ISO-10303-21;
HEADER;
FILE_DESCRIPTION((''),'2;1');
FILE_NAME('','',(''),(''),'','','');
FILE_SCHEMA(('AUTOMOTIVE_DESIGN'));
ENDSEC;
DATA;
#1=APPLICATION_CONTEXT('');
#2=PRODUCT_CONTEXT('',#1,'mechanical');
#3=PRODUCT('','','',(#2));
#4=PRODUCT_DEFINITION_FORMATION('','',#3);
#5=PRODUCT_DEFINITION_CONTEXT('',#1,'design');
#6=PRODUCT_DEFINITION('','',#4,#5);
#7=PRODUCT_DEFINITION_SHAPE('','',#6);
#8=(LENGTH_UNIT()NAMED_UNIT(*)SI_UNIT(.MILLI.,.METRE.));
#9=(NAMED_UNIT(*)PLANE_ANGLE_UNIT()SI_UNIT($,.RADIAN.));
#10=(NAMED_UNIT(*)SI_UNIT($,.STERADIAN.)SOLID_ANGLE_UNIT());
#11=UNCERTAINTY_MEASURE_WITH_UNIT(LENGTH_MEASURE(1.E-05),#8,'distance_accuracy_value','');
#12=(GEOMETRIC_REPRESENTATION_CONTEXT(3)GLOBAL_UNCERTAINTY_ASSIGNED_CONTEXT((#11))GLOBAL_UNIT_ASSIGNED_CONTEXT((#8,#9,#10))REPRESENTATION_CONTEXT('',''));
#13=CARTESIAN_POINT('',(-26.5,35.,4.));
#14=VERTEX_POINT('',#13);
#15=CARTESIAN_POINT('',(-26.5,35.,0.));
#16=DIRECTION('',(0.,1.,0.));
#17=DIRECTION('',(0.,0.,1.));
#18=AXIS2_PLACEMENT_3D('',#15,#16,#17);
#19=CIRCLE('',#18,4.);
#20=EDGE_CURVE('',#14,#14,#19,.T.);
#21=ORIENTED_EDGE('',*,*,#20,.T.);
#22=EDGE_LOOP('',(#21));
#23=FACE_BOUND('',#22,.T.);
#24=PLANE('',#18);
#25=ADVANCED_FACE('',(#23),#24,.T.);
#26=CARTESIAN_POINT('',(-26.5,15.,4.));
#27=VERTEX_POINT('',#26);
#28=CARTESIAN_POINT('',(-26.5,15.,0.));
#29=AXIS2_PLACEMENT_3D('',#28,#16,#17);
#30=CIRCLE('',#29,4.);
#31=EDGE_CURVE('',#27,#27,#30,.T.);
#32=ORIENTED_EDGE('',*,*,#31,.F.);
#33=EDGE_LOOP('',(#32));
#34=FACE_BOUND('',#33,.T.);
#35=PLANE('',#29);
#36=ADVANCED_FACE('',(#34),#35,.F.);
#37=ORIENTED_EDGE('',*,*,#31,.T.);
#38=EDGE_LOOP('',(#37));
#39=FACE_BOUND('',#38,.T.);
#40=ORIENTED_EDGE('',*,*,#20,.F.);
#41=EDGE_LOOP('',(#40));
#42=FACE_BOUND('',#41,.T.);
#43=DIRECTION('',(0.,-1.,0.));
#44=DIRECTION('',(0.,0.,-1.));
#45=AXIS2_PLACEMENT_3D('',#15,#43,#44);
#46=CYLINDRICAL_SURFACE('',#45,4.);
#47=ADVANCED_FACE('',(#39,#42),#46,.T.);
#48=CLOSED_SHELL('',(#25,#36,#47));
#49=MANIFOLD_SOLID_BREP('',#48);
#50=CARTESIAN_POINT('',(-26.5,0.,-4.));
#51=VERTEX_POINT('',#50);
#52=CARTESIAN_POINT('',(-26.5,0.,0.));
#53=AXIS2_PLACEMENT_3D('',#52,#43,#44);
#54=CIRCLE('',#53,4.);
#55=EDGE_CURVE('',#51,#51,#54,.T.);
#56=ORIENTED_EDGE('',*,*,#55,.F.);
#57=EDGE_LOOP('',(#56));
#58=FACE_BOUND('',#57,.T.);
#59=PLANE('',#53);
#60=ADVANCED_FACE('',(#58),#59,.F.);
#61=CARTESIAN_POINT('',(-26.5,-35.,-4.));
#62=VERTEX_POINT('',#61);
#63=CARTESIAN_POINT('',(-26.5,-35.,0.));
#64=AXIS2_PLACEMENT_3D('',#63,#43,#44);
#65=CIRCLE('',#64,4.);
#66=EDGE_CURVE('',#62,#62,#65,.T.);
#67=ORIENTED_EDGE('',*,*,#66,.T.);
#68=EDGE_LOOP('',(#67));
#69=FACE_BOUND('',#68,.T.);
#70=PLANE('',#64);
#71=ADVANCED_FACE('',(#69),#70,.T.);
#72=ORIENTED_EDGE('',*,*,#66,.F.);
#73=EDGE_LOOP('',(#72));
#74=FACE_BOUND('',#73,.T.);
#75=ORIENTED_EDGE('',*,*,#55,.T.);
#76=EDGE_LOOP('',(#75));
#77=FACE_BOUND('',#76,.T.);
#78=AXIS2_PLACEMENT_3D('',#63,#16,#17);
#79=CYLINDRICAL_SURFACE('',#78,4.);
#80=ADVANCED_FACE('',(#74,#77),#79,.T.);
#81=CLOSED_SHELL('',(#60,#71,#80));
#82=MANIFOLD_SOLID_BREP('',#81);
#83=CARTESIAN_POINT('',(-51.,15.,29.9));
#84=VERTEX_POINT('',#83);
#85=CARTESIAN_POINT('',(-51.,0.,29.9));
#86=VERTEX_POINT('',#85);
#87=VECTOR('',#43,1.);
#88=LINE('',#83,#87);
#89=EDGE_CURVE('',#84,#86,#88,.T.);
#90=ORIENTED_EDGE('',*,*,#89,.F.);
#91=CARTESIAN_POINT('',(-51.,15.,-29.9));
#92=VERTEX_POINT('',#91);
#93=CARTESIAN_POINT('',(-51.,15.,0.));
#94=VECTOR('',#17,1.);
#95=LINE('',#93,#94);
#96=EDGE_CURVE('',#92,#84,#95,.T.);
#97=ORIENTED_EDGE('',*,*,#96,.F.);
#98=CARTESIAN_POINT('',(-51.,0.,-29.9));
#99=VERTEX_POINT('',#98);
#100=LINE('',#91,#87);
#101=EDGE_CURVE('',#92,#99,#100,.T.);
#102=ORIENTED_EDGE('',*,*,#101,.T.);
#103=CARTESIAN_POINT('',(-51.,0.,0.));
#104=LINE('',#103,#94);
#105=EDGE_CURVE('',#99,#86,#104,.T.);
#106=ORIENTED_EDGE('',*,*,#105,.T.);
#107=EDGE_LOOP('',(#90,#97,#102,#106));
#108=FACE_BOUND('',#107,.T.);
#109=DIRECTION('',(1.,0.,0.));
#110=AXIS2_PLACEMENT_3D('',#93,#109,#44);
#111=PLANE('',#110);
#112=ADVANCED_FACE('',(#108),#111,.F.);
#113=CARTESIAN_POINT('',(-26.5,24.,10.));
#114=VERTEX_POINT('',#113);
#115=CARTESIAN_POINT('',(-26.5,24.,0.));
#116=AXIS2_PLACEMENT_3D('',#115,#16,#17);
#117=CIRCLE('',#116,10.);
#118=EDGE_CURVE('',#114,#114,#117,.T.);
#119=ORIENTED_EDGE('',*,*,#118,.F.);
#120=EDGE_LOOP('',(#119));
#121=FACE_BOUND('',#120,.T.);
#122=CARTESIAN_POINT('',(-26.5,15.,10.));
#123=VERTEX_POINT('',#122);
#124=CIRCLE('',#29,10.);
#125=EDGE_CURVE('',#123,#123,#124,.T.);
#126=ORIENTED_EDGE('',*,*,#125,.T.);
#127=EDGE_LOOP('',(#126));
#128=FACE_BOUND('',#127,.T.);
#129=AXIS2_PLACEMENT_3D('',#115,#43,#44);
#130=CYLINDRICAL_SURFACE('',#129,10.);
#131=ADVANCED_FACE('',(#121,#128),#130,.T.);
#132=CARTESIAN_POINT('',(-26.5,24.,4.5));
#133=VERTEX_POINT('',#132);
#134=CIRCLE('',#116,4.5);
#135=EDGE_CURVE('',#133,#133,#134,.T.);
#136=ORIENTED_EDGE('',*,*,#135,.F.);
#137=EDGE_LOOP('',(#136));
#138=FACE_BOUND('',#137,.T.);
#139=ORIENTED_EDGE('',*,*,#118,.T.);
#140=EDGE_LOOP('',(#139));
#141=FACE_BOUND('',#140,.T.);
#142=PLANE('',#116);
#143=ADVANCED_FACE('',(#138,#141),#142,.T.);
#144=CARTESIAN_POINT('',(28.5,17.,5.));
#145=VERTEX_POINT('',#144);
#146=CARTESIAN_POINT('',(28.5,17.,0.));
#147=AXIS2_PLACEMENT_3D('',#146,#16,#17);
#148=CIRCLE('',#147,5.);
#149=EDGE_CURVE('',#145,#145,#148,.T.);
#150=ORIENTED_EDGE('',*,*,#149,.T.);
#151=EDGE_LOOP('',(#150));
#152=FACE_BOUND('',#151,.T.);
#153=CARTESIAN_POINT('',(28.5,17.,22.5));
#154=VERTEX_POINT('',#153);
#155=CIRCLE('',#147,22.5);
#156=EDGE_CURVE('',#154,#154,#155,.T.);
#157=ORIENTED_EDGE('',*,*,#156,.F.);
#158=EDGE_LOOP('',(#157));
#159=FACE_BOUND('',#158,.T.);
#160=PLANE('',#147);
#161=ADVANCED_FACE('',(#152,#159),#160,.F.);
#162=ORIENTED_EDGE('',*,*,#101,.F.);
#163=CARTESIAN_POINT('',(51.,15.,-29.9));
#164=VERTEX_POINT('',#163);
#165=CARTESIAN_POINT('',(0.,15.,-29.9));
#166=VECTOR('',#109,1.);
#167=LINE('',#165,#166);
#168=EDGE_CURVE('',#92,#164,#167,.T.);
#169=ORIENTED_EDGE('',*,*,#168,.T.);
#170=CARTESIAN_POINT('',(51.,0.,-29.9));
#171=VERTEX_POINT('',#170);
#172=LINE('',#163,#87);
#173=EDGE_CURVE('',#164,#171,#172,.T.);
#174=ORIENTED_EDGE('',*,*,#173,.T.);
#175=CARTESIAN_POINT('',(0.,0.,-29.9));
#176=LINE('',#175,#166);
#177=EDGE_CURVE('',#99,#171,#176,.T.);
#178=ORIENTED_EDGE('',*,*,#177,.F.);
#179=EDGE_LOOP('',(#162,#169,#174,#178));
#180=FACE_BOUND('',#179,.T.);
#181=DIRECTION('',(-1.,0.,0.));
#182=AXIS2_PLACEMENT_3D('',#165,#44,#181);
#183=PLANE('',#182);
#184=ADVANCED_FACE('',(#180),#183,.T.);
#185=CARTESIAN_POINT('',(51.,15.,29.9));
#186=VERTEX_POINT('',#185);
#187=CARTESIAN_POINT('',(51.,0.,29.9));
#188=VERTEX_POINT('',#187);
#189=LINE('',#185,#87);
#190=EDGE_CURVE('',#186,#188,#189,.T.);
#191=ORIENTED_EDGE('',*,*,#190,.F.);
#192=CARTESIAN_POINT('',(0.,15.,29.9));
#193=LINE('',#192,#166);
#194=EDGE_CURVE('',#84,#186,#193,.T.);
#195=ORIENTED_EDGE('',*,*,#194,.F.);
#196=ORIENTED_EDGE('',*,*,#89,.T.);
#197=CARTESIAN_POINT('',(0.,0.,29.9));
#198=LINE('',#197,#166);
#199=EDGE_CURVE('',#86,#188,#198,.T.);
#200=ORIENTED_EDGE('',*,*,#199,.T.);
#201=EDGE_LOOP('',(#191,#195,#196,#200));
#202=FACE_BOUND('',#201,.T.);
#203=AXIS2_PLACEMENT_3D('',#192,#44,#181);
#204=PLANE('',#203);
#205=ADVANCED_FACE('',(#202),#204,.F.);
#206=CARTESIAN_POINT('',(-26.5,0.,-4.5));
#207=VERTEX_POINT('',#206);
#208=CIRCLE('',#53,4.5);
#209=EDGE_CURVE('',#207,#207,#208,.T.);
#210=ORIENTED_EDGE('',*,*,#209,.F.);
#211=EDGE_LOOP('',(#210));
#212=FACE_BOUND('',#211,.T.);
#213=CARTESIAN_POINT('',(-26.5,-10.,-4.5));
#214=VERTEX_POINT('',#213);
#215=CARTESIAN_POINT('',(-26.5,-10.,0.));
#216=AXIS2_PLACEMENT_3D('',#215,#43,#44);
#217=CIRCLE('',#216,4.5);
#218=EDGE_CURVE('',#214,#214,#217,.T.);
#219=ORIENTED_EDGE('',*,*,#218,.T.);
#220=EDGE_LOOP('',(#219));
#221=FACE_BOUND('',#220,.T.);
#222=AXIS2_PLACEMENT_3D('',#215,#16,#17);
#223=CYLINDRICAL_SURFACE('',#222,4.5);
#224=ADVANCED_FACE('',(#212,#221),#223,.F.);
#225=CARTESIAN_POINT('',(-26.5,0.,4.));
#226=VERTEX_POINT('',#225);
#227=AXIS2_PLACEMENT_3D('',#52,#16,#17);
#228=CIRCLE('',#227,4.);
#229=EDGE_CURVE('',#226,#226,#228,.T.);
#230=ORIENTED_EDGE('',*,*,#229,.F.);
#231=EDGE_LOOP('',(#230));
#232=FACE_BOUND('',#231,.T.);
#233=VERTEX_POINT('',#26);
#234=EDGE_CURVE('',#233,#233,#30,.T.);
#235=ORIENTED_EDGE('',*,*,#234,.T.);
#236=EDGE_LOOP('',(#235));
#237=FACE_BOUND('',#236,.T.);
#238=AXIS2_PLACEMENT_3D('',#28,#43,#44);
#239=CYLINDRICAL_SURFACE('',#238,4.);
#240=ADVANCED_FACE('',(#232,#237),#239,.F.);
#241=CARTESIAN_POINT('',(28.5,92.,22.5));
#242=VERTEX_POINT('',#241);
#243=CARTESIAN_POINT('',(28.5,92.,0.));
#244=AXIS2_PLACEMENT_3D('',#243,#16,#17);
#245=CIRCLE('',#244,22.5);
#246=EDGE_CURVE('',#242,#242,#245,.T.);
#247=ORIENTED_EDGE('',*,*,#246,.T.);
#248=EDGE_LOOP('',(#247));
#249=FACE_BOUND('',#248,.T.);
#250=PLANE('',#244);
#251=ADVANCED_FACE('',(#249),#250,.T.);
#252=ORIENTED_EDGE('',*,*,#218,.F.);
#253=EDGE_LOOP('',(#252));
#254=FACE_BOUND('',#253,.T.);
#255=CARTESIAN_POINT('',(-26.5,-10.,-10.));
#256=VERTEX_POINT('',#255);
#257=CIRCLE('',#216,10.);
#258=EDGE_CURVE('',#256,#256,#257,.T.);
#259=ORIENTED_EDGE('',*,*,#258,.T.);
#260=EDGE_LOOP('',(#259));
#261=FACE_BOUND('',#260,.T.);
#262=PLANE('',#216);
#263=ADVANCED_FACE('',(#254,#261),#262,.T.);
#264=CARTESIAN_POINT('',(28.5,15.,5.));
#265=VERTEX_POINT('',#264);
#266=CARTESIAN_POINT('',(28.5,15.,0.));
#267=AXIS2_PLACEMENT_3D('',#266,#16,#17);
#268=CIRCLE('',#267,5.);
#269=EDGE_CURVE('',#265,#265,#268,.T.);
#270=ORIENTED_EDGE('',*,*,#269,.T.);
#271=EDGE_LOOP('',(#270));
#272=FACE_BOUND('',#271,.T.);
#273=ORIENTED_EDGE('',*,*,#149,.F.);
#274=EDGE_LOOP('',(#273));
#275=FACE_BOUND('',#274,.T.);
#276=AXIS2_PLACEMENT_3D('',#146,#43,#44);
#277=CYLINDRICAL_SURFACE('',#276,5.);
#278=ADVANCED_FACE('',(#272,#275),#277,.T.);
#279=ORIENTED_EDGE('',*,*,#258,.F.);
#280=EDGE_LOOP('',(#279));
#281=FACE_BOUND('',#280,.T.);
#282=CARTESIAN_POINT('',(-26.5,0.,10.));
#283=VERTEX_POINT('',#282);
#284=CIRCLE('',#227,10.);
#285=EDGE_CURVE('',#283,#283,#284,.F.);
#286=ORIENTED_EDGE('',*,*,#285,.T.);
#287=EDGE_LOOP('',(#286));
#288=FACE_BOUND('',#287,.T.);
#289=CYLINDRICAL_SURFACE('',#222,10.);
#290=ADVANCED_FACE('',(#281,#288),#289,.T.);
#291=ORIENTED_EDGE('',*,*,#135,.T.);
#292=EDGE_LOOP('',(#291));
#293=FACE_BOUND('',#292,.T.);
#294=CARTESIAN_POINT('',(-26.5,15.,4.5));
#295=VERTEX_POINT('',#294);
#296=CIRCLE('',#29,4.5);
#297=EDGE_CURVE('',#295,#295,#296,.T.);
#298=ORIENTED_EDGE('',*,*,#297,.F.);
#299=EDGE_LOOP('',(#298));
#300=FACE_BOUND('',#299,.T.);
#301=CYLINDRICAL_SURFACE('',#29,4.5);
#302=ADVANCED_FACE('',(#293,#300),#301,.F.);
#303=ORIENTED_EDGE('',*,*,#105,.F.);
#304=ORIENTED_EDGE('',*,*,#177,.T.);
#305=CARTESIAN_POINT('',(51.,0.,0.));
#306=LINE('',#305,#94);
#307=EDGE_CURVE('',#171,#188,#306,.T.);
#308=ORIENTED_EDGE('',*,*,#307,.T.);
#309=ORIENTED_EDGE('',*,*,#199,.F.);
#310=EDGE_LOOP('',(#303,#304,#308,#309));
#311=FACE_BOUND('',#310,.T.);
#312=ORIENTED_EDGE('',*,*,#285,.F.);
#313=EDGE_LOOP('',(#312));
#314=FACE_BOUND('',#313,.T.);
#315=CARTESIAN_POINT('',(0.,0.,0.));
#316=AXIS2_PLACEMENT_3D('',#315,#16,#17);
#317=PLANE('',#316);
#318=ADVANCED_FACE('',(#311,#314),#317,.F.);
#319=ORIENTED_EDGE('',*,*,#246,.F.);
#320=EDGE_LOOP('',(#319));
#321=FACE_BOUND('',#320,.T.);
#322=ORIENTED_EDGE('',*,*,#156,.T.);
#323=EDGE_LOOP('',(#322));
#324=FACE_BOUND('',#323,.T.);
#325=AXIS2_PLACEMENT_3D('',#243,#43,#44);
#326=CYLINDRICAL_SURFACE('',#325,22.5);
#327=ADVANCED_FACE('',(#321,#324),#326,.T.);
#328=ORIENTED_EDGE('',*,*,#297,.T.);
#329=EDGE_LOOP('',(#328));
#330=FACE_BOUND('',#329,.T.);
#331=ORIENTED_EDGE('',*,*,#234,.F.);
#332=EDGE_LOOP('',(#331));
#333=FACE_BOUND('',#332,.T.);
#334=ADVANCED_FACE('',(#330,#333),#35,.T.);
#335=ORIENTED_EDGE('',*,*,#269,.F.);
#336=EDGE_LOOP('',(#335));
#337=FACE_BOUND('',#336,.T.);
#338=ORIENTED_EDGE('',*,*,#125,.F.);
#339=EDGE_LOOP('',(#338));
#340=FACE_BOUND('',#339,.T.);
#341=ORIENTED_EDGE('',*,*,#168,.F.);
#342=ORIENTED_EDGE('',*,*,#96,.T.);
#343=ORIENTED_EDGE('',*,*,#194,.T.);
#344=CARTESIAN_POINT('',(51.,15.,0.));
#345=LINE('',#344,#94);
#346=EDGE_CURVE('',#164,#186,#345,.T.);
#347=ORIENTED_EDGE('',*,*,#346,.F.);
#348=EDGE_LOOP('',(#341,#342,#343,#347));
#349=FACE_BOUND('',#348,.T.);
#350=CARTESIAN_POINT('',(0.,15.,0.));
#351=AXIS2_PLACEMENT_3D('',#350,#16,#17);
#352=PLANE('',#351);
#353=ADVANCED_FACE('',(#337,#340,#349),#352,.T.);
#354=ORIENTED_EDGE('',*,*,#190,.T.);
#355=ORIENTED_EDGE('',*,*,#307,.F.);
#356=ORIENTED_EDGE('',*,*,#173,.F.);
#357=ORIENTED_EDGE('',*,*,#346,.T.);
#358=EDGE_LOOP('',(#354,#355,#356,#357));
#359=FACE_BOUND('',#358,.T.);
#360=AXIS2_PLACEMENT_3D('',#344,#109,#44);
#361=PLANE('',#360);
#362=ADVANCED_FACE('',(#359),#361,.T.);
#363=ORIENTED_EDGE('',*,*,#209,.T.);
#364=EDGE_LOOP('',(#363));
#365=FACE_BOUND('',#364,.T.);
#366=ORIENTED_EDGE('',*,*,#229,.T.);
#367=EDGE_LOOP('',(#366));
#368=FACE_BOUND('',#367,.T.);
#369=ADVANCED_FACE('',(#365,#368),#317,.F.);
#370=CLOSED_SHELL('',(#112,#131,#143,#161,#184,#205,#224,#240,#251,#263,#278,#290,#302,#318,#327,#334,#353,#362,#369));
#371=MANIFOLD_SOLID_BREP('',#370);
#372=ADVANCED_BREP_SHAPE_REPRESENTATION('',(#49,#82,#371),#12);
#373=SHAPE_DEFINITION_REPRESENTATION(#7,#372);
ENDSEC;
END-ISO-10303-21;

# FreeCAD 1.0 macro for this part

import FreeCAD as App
import Part
import Sketcher
from FreeCAD import Vector


def add_polygon(sketch, points):
    """Adds a closed chain of lines whose ends are joined by coincident constraints."""
    first, n = sketch.GeometryCount, len(points)
    for a, b in zip(points, points[1:] + points[:1]):
        sketch.addGeometry(Part.LineSegment(App.Vector(*a, 0), App.Vector(*b, 0)), False)
    for i in range(n):
        sketch.addConstraint(Sketcher.Constraint("Coincident", first + i, 2, first + (i + 1) % n, 1))

doc = App.newDocument("Part")
params = doc.addObject("Spreadsheet::Sheet", "Params")
for row, (alias, value) in enumerate([
    ("sketch1_diameter", "8 mm"),
    ("sketch1_width", "102 mm"),
    ("sketch1_height", "59.8 mm"),
    ("pad1_length", "15 mm"),
    ("sketch2_diameter", "10 mm"),
    ("pad2_length", "2 mm"),
    ("sketch3_diameter", "45 mm"),
    ("pad3_length", "75 mm"),
    ("sketch4_diameter", "20 mm"),
    ("pad4_length", "9 mm"),
    ("sketch5_diameter", "9 mm"),
    ("pocket1_length", "9 mm"),
    ("sketch6_diameter", "20 mm"),
    ("sketch6_diameter2", "9 mm"),
    ("pad5_length", "10 mm"),
    ("sketch7_diameter", "8 mm"),
    ("pad6_length", "20 mm"),
    ("sketch8_diameter", "8 mm"),
    ("pad7_length", "35 mm"),
], start=1):
    params.set(f"A{row}", alias)
    params.set(f"B{row}", "=" + value)
    params.setAlias(f"B{row}", alias)

body = doc.addObject("PartDesign::Body", "Body")

# Sketch on XZ plane
sketch1 = doc.addObject("Sketcher::SketchObject", "Sketch")
body.addObject(sketch1)
sketch1.AttachmentSupport = (doc.XZ_Plane, [""])
sketch1.MapMode = "FlatFace"
add_polygon(sketch1, [(-51, -29.9), (-51, 29.9), (51, 29.9), (51, -29.9)])  # lines 0-3
sketch1.addGeometry(Part.Circle(Vector(-26.5, 0, 0), Vector(0, 0, 1), 4), False)  # 4
sketch1.addConstraint(Sketcher.Constraint("Vertical", 0))
sketch1.addConstraint(Sketcher.Constraint("Horizontal", 1))
sketch1.addConstraint(Sketcher.Constraint("Vertical", 2))
sketch1.addConstraint(Sketcher.Constraint("Horizontal", 3))
sketch1.addConstraint(Sketcher.Constraint("Symmetric", 0, 2, 2, 2, -1, 1))
sketch1.addConstraint(Sketcher.Constraint("PointOnObject", 4, 3, -1))
sketch1.addConstraint(Sketcher.Constraint("Diameter", 4, 8.0))
sketch1.addConstraint(Sketcher.Constraint("DistanceX", 1, 1, 1, 2, 102.0))
sketch1.addConstraint(Sketcher.Constraint("DistanceY", 0, 1, 0, 2, 59.8))
sketch1.addConstraint(Sketcher.Constraint("DistanceX", 4, 3, -1, 1, 26.5))
sketch1.setExpression("Constraints[10]", "Params.sketch1_diameter")
sketch1.setExpression("Constraints[11]", "Params.sketch1_width")
sketch1.setExpression("Constraints[12]", "Params.sketch1_height")
pad1 = doc.addObject("PartDesign::Pad", "Pad")
body.addObject(pad1)
pad1.Profile = sketch1
pad1.setExpression("Length", "Params.pad1_length")
pad1.Reversed = True

# Sketch on XZ plane
sketch2 = doc.addObject("Sketcher::SketchObject", "Sketch001")
body.addObject(sketch2)
sketch2.AttachmentSupport = (doc.XZ_Plane, [""])
sketch2.MapMode = "FlatFace"
sketch2.AttachmentOffset = App.Placement(Vector(0, 0, -15), App.Rotation())
sketch2.addGeometry(Part.Circle(Vector(28.5, 0, 0), Vector(0, 0, 1), 5), False)
sketch2.addConstraint(Sketcher.Constraint("PointOnObject", 0, 3, -1))
sketch2.addConstraint(Sketcher.Constraint("Diameter", 0, 10.0))
sketch2.addConstraint(Sketcher.Constraint("DistanceX", -1, 1, 0, 3, 28.5))
sketch2.setExpression("Constraints[1]", "Params.sketch2_diameter")
pad2 = doc.addObject("PartDesign::Pad", "Pad001")
body.addObject(pad2)
pad2.Profile = sketch2
pad2.setExpression("Length", "Params.pad2_length")
pad2.Reversed = True

# Sketch on XZ plane
sketch3 = doc.addObject("Sketcher::SketchObject", "Sketch002")
body.addObject(sketch3)
sketch3.AttachmentSupport = (doc.XZ_Plane, [""])
sketch3.MapMode = "FlatFace"
sketch3.AttachmentOffset = App.Placement(Vector(0, 0, -17), App.Rotation())
sketch3.addGeometry(Part.Circle(Vector(28.5, 0, 0), Vector(0, 0, 1), 22.5), False)
sketch3.addConstraint(Sketcher.Constraint("PointOnObject", 0, 3, -1))
sketch3.addConstraint(Sketcher.Constraint("Diameter", 0, 45.0))
sketch3.addConstraint(Sketcher.Constraint("DistanceX", -1, 1, 0, 3, 28.5))
sketch3.setExpression("Constraints[1]", "Params.sketch3_diameter")
pad3 = doc.addObject("PartDesign::Pad", "Pad002")
body.addObject(pad3)
pad3.Profile = sketch3
pad3.setExpression("Length", "Params.pad3_length")
pad3.Reversed = True

# Sketch on XZ plane
sketch4 = doc.addObject("Sketcher::SketchObject", "Sketch003")
body.addObject(sketch4)
sketch4.AttachmentSupport = (doc.XZ_Plane, [""])
sketch4.MapMode = "FlatFace"
sketch4.AttachmentOffset = App.Placement(Vector(0, 0, -15), App.Rotation())
sketch4.addGeometry(Part.Circle(Vector(-26.5, 0, 0), Vector(0, 0, 1), 10), False)
sketch4.addConstraint(Sketcher.Constraint("PointOnObject", 0, 3, -1))
sketch4.addConstraint(Sketcher.Constraint("Diameter", 0, 20.0))
sketch4.addConstraint(Sketcher.Constraint("DistanceX", 0, 3, -1, 1, 26.5))
sketch4.setExpression("Constraints[1]", "Params.sketch4_diameter")
pad4 = doc.addObject("PartDesign::Pad", "Pad003")
body.addObject(pad4)
pad4.Profile = sketch4
pad4.setExpression("Length", "Params.pad4_length")
pad4.Reversed = True

# Sketch on XZ plane
sketch5 = doc.addObject("Sketcher::SketchObject", "Sketch004")
body.addObject(sketch5)
sketch5.AttachmentSupport = (doc.XZ_Plane, [""])
sketch5.MapMode = "FlatFace"
sketch5.AttachmentOffset = App.Placement(Vector(0, 0, -24), App.Rotation())
sketch5.addGeometry(Part.Circle(Vector(-26.5, 0, 0), Vector(0, 0, 1), 4.5), False)
sketch5.addConstraint(Sketcher.Constraint("PointOnObject", 0, 3, -1))
sketch5.addConstraint(Sketcher.Constraint("Diameter", 0, 9.0))
sketch5.addConstraint(Sketcher.Constraint("DistanceX", 0, 3, -1, 1, 26.5))
sketch5.setExpression("Constraints[1]", "Params.sketch5_diameter")
pocket1 = doc.addObject("PartDesign::Pocket", "Pocket")
body.addObject(pocket1)
pocket1.Profile = sketch5
pocket1.setExpression("Length", "Params.pocket1_length")
pocket1.Reversed = True

# Sketch on XZ plane
sketch6 = doc.addObject("Sketcher::SketchObject", "Sketch005")
body.addObject(sketch6)
sketch6.AttachmentSupport = (doc.XZ_Plane, [""])
sketch6.MapMode = "FlatFace"
sketch6.addGeometry(Part.Circle(Vector(-26.5, 0, 0), Vector(0, 0, 1), 10), False)
sketch6.addGeometry(Part.Circle(Vector(-26.5, 0, 0), Vector(0, 0, 1), 4.5), False)
sketch6.addConstraint(Sketcher.Constraint("Coincident", 1, 3, 0, 3))
sketch6.addConstraint(Sketcher.Constraint("PointOnObject", 0, 3, -1))
sketch6.addConstraint(Sketcher.Constraint("Diameter", 0, 20.0))
sketch6.addConstraint(Sketcher.Constraint("Diameter", 1, 9.0))
sketch6.addConstraint(Sketcher.Constraint("DistanceX", 0, 3, -1, 1, 26.5))
sketch6.setExpression("Constraints[2]", "Params.sketch6_diameter")
sketch6.setExpression("Constraints[3]", "Params.sketch6_diameter2")
pad5 = doc.addObject("PartDesign::Pad", "Pad004")
body.addObject(pad5)
pad5.Profile = sketch6
pad5.setExpression("Length", "Params.pad5_length")
body2 = doc.addObject("PartDesign::Body", "Body001")

# Sketch on XZ plane
sketch7 = doc.addObject("Sketcher::SketchObject", "Sketch006")
body2.addObject(sketch7)
sketch7.AttachmentSupport = (doc.getObject("XZ_Plane001"), [""])
sketch7.MapMode = "FlatFace"
sketch7.AttachmentOffset = App.Placement(Vector(0, 0, -15), App.Rotation())
sketch7.addGeometry(Part.Circle(Vector(-26.5, 0, 0), Vector(0, 0, 1), 4), False)
sketch7.addConstraint(Sketcher.Constraint("PointOnObject", 0, 3, -1))
sketch7.addConstraint(Sketcher.Constraint("Diameter", 0, 8.0))
sketch7.addConstraint(Sketcher.Constraint("DistanceX", 0, 3, -1, 1, 26.5))
sketch7.setExpression("Constraints[1]", "Params.sketch7_diameter")
pad6 = doc.addObject("PartDesign::Pad", "Pad005")
body2.addObject(pad6)
pad6.Profile = sketch7
pad6.setExpression("Length", "Params.pad6_length")
pad6.Reversed = True
body3 = doc.addObject("PartDesign::Body", "Body002")

# Sketch on XZ plane
sketch8 = doc.addObject("Sketcher::SketchObject", "Sketch007")
body3.addObject(sketch8)
sketch8.AttachmentSupport = (doc.getObject("XZ_Plane002"), [""])
sketch8.MapMode = "FlatFace"
sketch8.addGeometry(Part.Circle(Vector(-26.5, 0, 0), Vector(0, 0, 1), 4), False)
sketch8.addConstraint(Sketcher.Constraint("PointOnObject", 0, 3, -1))
sketch8.addConstraint(Sketcher.Constraint("Diameter", 0, 8.0))
sketch8.addConstraint(Sketcher.Constraint("DistanceX", 0, 3, -1, 1, 26.5))
sketch8.setExpression("Constraints[1]", "Params.sketch8_diameter")
pad7 = doc.addObject("PartDesign::Pad", "Pad006")
body3.addObject(pad7)
pad7.Profile = sketch8
pad7.setExpression("Length", "Params.pad7_length")

doc.recompute()
